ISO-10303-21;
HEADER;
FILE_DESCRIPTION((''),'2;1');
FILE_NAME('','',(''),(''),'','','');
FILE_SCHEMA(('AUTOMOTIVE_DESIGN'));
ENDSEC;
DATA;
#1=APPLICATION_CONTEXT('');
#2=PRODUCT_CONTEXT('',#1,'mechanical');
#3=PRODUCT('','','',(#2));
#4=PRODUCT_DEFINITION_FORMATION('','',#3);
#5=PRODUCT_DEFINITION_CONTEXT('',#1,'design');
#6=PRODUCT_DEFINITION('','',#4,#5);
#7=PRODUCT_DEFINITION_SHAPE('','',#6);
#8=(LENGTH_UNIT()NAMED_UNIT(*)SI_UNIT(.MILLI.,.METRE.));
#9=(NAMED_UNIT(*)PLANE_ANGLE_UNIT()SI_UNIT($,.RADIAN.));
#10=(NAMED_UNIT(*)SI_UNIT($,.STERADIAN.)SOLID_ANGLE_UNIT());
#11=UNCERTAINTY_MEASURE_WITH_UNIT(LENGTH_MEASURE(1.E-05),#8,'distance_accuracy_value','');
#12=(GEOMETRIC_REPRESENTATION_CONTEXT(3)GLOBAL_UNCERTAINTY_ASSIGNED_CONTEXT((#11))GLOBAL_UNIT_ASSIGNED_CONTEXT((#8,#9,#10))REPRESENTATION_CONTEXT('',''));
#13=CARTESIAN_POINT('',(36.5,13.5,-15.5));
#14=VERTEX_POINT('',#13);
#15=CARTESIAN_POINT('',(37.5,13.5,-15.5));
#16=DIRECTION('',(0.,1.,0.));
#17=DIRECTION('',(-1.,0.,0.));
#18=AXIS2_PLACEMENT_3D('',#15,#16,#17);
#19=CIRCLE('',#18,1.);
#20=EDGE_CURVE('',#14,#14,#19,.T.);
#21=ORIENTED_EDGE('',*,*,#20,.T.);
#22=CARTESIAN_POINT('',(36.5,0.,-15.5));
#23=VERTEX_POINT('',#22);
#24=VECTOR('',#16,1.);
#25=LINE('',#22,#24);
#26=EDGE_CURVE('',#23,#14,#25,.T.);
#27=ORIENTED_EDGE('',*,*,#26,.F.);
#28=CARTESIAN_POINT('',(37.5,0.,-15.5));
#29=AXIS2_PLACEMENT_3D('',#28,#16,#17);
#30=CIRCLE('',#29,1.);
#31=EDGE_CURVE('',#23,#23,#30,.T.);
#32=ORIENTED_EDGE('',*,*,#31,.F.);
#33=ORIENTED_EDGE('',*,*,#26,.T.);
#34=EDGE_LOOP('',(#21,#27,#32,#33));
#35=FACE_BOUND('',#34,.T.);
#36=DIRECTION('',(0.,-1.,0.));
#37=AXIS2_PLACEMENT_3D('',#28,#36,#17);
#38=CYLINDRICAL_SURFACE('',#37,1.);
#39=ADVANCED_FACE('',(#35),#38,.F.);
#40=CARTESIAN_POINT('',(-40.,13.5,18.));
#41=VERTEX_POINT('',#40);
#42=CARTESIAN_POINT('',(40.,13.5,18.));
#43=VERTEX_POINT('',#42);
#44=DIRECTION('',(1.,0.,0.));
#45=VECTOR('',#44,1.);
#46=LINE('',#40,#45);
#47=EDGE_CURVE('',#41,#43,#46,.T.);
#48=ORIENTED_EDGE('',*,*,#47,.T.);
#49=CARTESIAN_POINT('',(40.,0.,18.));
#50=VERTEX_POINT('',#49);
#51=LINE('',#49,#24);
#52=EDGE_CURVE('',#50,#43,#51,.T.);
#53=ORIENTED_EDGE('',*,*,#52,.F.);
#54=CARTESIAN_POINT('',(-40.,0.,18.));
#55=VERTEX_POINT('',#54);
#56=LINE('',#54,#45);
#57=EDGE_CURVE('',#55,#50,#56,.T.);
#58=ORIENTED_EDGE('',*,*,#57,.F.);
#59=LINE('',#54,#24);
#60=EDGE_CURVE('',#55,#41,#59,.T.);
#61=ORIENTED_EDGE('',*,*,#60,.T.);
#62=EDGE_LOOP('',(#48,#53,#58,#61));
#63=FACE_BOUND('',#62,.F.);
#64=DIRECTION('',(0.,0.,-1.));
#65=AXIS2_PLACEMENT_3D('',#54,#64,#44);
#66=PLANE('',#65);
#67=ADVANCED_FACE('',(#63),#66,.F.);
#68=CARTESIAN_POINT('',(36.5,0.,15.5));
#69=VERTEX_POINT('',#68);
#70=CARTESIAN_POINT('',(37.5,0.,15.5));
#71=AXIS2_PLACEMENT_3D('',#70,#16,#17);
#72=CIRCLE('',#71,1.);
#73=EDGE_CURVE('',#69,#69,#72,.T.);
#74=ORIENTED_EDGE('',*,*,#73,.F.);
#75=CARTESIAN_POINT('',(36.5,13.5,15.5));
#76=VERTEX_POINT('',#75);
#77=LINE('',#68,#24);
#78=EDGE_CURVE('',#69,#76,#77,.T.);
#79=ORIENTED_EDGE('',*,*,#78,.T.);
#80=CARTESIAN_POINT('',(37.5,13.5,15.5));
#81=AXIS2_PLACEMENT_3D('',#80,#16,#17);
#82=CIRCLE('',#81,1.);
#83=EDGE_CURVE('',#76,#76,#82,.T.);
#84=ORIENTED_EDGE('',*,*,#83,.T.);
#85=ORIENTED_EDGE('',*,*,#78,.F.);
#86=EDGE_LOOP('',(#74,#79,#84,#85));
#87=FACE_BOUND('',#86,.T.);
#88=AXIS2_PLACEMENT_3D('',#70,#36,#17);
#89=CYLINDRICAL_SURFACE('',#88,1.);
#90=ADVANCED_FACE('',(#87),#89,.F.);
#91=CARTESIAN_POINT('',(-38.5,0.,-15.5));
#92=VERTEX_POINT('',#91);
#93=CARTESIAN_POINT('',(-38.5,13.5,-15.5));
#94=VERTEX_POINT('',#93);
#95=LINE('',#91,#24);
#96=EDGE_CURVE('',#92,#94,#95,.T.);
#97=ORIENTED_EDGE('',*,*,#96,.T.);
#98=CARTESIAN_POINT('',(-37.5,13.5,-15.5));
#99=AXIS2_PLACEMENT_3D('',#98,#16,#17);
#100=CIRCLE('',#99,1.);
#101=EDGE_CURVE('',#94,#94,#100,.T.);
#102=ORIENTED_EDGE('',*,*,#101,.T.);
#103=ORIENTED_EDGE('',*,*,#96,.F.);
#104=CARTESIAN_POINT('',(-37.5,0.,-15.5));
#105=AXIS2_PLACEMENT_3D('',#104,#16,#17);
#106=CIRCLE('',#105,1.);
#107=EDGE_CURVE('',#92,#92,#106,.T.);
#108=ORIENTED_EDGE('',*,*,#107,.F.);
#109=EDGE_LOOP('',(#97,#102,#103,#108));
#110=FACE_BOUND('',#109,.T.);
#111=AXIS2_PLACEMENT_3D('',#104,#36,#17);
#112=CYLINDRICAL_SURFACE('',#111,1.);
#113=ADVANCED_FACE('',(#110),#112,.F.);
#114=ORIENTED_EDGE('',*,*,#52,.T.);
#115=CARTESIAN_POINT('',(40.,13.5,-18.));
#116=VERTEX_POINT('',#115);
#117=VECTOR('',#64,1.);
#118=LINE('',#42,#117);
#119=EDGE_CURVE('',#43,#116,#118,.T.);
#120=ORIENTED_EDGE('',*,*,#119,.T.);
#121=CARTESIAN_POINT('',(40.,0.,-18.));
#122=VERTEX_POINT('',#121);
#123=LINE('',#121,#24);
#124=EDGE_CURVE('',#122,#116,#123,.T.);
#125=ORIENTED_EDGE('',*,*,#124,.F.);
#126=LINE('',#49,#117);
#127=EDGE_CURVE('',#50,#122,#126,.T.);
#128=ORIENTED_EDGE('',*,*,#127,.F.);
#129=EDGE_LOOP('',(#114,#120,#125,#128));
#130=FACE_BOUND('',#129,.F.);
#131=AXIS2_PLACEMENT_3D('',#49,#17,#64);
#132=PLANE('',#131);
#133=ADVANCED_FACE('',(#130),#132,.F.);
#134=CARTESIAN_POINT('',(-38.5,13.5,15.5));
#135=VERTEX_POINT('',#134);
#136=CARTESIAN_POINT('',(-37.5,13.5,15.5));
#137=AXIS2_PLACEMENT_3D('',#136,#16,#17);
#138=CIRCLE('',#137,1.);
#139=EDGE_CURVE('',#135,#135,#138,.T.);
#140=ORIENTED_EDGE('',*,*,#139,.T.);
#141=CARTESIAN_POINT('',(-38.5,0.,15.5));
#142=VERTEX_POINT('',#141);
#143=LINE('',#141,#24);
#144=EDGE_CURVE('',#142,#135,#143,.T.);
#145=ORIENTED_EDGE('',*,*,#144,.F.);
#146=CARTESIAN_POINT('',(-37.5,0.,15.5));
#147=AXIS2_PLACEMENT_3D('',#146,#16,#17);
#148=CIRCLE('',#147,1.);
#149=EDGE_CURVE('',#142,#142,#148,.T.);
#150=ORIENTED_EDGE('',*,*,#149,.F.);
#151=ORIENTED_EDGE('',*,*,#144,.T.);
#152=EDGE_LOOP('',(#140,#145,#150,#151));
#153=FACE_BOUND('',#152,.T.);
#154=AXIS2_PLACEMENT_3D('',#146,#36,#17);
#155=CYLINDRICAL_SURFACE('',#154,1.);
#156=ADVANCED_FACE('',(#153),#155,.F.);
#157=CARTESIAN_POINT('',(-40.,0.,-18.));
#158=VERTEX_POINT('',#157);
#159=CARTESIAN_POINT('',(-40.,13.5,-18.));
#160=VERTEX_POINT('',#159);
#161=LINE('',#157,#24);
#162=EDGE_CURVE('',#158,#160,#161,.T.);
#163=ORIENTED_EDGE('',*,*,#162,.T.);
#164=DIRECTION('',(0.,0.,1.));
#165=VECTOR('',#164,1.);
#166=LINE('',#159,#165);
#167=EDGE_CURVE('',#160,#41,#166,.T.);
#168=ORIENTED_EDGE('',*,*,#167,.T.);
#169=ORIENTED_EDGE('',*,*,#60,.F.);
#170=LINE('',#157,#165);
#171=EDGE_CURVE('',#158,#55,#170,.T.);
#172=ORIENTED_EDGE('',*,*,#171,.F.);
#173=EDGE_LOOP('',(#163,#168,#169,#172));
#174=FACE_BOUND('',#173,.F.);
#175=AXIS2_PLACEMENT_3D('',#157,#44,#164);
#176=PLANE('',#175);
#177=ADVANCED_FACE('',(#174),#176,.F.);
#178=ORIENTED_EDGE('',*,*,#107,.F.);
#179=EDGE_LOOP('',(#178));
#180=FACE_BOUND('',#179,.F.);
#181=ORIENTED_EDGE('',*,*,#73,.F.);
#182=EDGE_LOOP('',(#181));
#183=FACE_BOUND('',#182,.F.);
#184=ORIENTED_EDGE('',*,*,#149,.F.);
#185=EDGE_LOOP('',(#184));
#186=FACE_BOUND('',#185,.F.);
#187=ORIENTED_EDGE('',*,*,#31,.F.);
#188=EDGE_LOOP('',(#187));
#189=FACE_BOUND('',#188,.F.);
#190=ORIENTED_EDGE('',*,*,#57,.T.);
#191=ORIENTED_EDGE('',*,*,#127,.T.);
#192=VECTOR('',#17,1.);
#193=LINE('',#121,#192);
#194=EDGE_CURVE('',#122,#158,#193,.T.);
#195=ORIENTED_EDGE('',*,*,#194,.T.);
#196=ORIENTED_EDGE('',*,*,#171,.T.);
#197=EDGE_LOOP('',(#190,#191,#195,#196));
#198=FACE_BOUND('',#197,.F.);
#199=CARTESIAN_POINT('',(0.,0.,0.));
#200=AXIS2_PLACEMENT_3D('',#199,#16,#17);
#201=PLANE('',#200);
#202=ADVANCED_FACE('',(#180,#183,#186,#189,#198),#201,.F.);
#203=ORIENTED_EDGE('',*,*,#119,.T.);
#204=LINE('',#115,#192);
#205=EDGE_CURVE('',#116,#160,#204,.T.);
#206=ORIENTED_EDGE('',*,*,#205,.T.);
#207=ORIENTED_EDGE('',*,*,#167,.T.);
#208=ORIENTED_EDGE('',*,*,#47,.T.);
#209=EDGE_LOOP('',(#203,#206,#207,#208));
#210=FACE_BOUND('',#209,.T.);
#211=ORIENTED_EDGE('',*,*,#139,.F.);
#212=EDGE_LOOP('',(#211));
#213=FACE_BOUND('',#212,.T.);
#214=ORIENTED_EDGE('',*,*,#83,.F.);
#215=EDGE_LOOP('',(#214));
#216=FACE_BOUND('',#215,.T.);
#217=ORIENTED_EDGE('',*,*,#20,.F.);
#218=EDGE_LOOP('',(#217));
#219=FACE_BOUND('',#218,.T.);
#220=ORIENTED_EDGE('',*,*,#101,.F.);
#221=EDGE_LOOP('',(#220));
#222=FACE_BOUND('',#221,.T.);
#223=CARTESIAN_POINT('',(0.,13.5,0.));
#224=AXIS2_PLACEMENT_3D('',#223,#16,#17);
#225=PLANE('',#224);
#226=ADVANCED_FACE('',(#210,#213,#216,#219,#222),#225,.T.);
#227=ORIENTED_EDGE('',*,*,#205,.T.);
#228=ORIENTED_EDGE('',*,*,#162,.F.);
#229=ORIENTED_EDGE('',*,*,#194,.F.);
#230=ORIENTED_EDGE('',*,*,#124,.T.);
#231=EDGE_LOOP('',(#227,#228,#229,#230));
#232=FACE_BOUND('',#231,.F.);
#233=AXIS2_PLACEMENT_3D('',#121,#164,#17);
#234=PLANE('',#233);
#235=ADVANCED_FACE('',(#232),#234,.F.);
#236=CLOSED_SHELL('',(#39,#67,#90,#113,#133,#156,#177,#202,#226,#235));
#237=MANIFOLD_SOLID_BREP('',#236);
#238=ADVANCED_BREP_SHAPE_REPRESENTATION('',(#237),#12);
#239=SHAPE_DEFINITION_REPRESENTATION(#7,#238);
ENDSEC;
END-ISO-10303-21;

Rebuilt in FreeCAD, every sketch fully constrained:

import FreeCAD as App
import Part
import Sketcher
from FreeCAD import Vector
Q = App.Units.Quantity


def add_polygon(sketch, points):
    """Adds a closed chain of lines whose ends are joined by coincident constraints."""
    first, n = sketch.GeometryCount, len(points)
    for a, b in zip(points, points[1:] + points[:1]):
        sketch.addGeometry(Part.LineSegment(App.Vector(*a, 0), App.Vector(*b, 0)), False)
    for i in range(n):
        sketch.addConstraint(Sketcher.Constraint("Coincident", first + i, 2, first + (i + 1) % n, 1))

doc = App.newDocument("Part")
body = doc.addObject("PartDesign::Body", "Body")

# Sketch on XZ plane
sketch1 = body.newObject("Sketcher::SketchObject", "Sketch")
sketch1.AttachmentSupport = (doc.getObject("XZ_Plane"), [""])
sketch1.MapMode = "FlatFace"
add_polygon(sketch1, [(-40, -18), (-40, 18), (40, 18), (40, -18)])  # lines 0-3
sketch1.addGeometry(Part.Circle(Vector(37.5, -15.5, 0), Vector(0, 0, 1), 1), False)  # 4
sketch1.addGeometry(Part.Circle(Vector(-37.5, -15.5, 0), Vector(0, 0, 1), 1), False)  # 5
sketch1.addGeometry(Part.Circle(Vector(37.5, 15.5, 0), Vector(0, 0, 1), 1), False)  # 6
sketch1.addGeometry(Part.Circle(Vector(-37.5, 15.5, 0), Vector(0, 0, 1), 1), False)  # 7
sketch1.addConstraint([
    Sketcher.Constraint("Vertical", 0),
    Sketcher.Constraint("Horizontal", 1),
    Sketcher.Constraint("Vertical", 2),
    Sketcher.Constraint("Horizontal", 3),
    Sketcher.Constraint("Equal", 4, 5),
    Sketcher.Constraint("Equal", 5, 6),
    Sketcher.Constraint("Equal", 6, 7),
    Sketcher.Constraint("Symmetric", 5, 3, 6, 3, -1, 1),
    Sketcher.Constraint("Symmetric", 4, 3, 7, 3, -1, 1),
    Sketcher.Constraint("Symmetric", 0, 2, 2, 2, -1, 1),
    Sketcher.Constraint("Symmetric", 4, 3, 5, 3, -2),
    Sketcher.Constraint("Diameter", 4, Q("2 mm")),
    Sketcher.Constraint("DistanceX", 1, 1, 1, 2, Q("80 mm")),
    Sketcher.Constraint("DistanceY", 0, 1, 0, 2, Q("36 mm")),
    Sketcher.Constraint("DistanceX", 5, 3, 4, 3, Q("75 mm")),
    Sketcher.Constraint("DistanceY", 4, 3, 6, 3, Q("31 mm")),
])
pad1 = body.newObject("PartDesign::Pad", "Pad")
pad1.Profile = sketch1
pad1.Length = 13.5
pad1.Reversed = True

doc.recompute()
